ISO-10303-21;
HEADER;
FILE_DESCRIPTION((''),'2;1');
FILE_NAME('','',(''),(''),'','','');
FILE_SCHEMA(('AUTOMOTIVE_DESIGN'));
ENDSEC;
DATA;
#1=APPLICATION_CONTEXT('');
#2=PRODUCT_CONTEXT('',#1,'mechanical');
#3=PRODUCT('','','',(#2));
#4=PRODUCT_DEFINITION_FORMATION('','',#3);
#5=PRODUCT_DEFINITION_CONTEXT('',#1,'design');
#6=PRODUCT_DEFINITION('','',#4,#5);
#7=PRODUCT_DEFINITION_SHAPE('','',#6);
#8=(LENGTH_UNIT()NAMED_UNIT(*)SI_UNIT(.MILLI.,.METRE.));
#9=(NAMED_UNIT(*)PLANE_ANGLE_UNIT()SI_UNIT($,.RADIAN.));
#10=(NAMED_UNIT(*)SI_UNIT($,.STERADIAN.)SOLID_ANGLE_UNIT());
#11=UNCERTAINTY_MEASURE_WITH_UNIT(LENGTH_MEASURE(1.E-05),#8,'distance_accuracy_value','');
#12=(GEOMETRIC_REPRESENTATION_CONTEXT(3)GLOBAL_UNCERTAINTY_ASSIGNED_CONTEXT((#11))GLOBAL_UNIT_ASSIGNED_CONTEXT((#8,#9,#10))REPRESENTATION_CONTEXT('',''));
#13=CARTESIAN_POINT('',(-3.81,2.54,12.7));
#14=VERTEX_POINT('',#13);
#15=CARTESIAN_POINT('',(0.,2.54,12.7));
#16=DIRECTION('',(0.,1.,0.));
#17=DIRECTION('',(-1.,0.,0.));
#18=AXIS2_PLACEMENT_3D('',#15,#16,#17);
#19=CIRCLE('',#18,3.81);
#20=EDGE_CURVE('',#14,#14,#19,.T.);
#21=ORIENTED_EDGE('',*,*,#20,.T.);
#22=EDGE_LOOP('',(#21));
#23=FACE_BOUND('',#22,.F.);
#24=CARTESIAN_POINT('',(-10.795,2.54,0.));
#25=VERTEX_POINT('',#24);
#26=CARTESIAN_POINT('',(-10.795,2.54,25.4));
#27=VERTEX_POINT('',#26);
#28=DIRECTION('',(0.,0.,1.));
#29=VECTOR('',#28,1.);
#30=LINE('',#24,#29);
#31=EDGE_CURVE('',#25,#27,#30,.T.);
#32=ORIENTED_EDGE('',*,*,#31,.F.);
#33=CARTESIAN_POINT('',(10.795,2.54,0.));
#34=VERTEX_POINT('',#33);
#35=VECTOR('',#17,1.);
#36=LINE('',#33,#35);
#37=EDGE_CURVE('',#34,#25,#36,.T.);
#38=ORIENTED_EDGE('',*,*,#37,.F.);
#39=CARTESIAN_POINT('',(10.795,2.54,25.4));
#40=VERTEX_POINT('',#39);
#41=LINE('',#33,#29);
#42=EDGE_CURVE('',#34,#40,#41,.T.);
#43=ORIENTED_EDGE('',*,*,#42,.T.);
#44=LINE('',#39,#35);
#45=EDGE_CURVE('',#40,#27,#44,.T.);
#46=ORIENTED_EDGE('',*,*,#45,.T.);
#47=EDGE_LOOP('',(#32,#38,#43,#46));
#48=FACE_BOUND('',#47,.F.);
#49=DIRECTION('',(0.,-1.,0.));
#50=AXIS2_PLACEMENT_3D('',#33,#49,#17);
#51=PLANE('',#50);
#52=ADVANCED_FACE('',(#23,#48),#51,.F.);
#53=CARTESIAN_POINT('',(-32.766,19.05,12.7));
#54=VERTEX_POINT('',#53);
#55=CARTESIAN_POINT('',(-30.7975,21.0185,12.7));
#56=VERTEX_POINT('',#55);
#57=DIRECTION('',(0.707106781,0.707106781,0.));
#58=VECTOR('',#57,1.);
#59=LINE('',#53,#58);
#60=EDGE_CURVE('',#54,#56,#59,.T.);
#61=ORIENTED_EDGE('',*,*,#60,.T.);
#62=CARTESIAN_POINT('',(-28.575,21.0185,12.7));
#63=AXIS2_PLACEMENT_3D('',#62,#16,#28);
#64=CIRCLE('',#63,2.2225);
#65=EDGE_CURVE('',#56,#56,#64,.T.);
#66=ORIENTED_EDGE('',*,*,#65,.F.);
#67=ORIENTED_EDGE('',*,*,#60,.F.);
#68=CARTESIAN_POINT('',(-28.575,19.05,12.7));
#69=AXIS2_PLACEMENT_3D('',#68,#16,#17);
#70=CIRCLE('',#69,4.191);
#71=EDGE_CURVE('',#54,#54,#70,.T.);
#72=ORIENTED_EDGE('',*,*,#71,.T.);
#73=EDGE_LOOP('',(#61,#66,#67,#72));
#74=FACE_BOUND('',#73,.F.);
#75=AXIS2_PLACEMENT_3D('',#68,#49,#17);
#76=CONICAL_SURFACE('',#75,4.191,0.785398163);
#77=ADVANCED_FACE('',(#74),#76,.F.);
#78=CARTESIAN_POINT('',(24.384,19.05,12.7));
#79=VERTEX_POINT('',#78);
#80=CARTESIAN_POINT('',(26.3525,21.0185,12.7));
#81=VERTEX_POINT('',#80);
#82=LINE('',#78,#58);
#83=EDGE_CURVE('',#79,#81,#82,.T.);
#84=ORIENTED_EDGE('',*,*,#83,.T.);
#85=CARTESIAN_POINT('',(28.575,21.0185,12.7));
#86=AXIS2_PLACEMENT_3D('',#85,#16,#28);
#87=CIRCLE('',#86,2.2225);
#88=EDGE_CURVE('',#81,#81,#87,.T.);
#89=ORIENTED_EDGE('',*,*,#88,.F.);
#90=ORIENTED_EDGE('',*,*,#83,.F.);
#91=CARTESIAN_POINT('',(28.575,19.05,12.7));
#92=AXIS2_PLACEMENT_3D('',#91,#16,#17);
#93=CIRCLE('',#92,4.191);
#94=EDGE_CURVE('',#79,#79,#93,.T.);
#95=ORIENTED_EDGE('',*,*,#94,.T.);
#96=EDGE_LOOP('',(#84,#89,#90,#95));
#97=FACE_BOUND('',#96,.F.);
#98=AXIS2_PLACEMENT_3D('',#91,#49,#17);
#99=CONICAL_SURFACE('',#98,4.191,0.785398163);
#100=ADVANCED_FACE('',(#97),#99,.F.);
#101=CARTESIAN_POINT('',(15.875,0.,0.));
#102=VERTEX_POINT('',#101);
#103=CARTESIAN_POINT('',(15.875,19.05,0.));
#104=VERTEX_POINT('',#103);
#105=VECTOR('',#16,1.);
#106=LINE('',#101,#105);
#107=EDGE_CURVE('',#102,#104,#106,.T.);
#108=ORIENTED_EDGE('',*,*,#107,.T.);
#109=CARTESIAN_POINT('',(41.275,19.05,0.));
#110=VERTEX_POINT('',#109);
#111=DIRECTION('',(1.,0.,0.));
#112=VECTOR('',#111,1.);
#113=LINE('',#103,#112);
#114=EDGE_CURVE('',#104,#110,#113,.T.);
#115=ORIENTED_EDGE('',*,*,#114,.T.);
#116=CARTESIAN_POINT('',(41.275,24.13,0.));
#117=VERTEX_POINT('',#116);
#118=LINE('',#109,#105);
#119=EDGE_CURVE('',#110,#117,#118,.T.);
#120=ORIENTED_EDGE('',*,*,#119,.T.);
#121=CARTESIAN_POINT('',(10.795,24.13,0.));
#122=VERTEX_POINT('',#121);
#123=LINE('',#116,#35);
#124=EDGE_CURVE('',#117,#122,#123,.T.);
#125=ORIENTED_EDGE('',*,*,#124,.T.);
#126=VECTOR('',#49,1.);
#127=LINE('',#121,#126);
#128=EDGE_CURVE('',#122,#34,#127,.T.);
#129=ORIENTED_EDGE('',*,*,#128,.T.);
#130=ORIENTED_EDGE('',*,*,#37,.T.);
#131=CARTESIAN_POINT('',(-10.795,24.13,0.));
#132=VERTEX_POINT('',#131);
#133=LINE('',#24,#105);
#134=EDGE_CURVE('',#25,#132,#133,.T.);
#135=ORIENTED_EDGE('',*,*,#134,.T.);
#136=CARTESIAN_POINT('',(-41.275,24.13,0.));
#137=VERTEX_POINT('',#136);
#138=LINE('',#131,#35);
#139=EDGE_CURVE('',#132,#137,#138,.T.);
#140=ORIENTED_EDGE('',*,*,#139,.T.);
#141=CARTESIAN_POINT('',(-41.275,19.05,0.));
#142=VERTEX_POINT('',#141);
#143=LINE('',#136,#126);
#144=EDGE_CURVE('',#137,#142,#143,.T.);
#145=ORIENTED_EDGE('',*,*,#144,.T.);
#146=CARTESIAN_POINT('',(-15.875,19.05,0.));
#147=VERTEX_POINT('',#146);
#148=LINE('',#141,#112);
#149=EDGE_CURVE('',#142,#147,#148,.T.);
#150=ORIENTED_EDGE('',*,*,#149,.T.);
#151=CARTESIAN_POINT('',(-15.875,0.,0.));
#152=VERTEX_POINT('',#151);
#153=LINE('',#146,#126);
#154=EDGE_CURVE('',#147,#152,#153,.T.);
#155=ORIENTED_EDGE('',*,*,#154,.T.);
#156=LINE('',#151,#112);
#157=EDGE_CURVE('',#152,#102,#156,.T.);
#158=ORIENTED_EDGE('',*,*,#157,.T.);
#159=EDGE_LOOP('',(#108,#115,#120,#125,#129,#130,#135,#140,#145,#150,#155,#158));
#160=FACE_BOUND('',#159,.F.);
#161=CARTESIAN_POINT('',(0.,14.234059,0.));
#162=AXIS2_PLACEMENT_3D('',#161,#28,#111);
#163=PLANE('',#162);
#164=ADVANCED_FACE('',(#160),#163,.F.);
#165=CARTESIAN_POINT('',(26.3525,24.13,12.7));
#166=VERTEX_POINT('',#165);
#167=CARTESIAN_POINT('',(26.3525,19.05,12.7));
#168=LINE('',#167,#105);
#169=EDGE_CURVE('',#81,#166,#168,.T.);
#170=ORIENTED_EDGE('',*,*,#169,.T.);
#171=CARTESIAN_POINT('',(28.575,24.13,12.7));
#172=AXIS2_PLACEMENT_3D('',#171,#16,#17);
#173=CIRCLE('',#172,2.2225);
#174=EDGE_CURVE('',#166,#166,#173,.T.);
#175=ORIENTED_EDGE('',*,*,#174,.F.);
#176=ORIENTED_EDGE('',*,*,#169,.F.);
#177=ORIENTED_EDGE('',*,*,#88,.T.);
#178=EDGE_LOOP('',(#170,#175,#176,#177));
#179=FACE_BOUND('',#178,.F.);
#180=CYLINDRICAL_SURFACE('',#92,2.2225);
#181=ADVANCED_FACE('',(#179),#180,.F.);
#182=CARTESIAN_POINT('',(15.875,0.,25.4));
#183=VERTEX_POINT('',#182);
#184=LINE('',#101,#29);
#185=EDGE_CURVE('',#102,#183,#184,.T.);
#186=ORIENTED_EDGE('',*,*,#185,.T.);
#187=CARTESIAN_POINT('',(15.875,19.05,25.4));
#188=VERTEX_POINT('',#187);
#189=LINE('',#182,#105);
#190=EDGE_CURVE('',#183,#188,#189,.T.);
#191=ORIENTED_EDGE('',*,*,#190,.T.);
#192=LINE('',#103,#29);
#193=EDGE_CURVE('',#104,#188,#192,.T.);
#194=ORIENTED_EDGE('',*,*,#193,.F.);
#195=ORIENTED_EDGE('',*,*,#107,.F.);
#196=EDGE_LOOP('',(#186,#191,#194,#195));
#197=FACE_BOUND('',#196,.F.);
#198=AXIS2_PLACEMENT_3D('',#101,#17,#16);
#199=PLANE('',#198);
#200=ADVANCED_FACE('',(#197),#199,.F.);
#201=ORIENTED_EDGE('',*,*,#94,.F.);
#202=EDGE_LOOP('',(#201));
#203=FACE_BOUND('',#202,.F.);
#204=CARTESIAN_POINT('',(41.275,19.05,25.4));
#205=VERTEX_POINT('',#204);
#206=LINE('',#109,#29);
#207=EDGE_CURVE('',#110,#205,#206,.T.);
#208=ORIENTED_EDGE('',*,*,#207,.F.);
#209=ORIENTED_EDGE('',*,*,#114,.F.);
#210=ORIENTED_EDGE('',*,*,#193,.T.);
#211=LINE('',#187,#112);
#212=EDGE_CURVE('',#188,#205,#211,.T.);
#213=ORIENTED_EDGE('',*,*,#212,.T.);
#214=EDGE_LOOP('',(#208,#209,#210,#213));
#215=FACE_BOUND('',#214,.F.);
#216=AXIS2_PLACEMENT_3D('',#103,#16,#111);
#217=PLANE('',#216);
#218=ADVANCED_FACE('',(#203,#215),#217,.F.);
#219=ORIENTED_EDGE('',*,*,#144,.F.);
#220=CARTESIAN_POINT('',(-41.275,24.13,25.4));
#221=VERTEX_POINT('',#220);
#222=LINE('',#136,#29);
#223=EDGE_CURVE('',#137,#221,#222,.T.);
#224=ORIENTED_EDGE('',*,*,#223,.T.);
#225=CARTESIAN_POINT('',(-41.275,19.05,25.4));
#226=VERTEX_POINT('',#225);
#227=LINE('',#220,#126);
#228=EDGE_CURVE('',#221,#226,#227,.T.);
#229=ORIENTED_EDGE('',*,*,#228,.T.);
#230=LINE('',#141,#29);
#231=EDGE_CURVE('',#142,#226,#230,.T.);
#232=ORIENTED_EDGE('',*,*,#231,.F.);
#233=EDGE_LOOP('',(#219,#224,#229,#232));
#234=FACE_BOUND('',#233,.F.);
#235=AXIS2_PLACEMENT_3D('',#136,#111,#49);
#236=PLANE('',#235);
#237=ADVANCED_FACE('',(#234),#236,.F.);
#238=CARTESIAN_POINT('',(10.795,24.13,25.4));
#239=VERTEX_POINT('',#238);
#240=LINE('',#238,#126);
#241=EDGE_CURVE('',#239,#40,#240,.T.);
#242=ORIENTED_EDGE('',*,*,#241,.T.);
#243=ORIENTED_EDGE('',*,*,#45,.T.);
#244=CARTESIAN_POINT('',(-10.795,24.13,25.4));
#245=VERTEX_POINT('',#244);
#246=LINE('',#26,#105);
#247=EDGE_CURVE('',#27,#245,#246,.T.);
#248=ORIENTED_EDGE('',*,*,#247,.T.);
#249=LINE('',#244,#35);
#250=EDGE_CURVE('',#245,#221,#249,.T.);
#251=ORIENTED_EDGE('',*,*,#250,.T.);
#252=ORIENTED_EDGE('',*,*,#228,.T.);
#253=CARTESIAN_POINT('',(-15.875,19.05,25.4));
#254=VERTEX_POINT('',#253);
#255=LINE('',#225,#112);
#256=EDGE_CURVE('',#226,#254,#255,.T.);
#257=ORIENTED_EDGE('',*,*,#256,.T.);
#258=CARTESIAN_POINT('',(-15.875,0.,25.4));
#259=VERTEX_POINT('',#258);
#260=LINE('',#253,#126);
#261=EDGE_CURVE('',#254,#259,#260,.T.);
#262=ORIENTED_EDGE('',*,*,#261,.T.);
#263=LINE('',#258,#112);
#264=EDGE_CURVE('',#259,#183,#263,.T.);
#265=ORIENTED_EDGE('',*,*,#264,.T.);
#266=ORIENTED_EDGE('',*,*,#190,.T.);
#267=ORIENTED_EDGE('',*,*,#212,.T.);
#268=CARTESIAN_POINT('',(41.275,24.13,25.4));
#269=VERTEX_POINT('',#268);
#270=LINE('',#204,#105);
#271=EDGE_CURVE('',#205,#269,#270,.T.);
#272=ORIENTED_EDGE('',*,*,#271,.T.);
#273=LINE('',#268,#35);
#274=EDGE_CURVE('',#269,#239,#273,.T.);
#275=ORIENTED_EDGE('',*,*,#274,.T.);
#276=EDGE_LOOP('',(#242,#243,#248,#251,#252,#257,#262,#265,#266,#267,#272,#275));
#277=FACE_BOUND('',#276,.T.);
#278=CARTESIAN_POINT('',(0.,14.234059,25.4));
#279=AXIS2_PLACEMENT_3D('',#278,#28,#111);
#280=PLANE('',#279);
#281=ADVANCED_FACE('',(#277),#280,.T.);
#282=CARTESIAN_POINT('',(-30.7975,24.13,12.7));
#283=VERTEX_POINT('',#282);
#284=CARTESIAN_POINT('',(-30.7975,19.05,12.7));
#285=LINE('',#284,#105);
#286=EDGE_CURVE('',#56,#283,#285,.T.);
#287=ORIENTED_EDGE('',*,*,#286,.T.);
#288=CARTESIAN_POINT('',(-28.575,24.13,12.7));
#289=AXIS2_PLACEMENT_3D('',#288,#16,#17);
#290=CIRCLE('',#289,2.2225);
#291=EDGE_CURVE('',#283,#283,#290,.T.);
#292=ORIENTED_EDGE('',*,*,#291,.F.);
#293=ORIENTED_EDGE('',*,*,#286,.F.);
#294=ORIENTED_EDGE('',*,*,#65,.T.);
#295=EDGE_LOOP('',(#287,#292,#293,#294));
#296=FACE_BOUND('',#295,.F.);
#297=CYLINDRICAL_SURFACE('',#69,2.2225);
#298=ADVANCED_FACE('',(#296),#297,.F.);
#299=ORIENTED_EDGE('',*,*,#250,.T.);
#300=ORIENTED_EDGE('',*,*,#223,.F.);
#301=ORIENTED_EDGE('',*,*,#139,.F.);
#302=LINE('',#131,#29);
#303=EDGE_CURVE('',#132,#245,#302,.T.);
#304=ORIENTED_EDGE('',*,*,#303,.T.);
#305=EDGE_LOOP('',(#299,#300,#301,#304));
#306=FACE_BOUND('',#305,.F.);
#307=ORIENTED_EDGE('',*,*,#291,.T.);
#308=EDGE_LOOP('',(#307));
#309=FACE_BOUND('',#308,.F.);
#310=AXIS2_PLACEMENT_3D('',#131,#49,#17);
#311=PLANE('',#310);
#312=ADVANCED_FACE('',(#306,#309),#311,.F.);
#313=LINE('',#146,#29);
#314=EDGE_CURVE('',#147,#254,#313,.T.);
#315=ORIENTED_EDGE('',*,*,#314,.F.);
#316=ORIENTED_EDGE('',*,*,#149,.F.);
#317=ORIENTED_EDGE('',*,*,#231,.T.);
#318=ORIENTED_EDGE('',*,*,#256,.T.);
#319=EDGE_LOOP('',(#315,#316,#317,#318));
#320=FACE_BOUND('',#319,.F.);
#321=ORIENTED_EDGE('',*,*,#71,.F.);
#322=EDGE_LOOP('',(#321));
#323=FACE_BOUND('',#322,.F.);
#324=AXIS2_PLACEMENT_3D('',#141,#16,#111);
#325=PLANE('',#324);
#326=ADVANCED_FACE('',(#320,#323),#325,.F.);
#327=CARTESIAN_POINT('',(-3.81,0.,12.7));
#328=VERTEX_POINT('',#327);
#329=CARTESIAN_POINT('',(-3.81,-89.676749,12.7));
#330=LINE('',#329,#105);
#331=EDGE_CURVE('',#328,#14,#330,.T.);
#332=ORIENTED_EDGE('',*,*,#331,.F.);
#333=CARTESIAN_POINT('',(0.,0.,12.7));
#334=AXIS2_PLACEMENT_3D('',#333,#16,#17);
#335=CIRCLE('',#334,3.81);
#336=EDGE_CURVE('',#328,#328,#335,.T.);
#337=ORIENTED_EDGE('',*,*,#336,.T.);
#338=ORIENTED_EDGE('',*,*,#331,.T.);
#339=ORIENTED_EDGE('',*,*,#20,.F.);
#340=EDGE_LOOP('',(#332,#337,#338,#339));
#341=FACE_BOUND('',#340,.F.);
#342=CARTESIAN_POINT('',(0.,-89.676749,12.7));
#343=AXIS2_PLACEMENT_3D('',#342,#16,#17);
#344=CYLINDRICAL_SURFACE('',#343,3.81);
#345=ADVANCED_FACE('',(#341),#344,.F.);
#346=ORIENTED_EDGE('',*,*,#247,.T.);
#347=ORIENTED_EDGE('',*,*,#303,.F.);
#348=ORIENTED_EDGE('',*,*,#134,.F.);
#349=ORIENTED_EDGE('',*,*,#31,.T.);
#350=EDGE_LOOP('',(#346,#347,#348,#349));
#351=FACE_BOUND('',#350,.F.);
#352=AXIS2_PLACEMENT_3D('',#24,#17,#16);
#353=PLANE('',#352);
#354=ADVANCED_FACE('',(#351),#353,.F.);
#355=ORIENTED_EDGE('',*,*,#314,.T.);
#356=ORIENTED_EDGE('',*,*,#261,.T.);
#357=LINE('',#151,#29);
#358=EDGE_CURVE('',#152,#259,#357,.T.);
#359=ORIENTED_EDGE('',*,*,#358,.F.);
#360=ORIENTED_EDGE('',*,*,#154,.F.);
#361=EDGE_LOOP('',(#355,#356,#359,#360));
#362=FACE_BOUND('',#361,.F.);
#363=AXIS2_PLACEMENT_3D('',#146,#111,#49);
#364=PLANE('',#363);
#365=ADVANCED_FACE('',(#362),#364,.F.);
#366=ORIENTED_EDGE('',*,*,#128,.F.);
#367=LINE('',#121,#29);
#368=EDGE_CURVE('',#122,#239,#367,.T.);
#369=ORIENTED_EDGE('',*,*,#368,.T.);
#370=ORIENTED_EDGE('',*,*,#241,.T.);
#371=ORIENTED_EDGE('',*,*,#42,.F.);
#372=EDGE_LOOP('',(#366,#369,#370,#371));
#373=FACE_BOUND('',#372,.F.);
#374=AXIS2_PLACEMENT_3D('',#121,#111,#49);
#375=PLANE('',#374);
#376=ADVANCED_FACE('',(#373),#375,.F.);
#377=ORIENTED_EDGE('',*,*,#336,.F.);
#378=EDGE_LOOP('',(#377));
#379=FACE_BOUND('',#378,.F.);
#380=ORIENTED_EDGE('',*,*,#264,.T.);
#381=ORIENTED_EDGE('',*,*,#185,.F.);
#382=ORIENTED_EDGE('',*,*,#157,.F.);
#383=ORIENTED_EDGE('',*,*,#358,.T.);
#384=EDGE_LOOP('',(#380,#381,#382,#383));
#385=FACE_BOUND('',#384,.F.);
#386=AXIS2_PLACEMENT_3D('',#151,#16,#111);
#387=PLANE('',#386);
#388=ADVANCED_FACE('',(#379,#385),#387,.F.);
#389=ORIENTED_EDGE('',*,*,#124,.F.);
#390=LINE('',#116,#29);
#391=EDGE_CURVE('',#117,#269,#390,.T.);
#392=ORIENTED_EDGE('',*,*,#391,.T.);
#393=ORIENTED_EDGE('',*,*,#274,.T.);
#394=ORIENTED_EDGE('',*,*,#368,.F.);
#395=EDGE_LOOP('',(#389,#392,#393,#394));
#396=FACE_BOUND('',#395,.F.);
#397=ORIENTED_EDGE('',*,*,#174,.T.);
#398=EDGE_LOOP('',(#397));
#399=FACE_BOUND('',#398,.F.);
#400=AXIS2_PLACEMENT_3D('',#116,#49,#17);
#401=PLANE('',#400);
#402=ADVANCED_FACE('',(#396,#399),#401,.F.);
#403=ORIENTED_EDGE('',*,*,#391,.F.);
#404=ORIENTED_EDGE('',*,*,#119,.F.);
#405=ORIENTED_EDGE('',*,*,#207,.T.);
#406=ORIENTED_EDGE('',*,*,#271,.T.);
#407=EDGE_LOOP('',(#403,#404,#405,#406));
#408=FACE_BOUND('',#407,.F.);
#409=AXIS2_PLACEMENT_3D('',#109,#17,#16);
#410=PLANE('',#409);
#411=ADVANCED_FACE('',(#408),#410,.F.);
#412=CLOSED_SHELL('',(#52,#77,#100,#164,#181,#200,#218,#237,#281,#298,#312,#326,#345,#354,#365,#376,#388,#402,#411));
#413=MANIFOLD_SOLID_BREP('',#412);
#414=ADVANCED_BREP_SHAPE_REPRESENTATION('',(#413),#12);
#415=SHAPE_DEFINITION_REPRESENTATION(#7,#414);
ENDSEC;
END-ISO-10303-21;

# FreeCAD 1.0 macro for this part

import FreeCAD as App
import Part
import Sketcher
from FreeCAD import Vector
Q = App.Units.Quantity


def add_polygon(sketch, points):
    """Adds a closed chain of lines whose ends are joined by coincident constraints."""
    first, n = sketch.GeometryCount, len(points)
    for a, b in zip(points, points[1:] + points[:1]):
        sketch.addGeometry(Part.LineSegment(App.Vector(*a, 0), App.Vector(*b, 0)), False)
    for i in range(n):
        sketch.addConstraint(Sketcher.Constraint("Coincident", first + i, 2, first + (i + 1) % n, 1))

doc = App.newDocument("Part")
body = doc.addObject("PartDesign::Body", "Body")

sketch1 = body.newObject("Sketcher::SketchObject", "Sketch")
sketch1.AttachmentSupport = (doc.getObject("XY_Plane"), [""])
sketch1.MapMode = "FlatFace"
add_polygon(sketch1, [(-10.795, 24.13), (-41.275, 24.13), (-41.275, 19.05), (-15.875, 19.05), (-15.875, 0), (15.875, 0), (15.875, 19.05), (41.275, 19.05), (41.275, 24.13), (10.795, 24.13), (10.795, 2.54), (-10.795, 2.54)])
sketch1.addConstraint([
    Sketcher.Constraint("Horizontal", 0),
    Sketcher.Constraint("Vertical", 1),
    Sketcher.Constraint("Horizontal", 2),
    Sketcher.Constraint("Vertical", 3),
    Sketcher.Constraint("Horizontal", 4),
    Sketcher.Constraint("Vertical", 5),
    Sketcher.Constraint("Horizontal", 6),
    Sketcher.Constraint("Vertical", 7),
    Sketcher.Constraint("Horizontal", 8),
    Sketcher.Constraint("Vertical", 9),
    Sketcher.Constraint("Horizontal", 10),
    Sketcher.Constraint("Vertical", 11),
    Sketcher.Constraint("Symmetric", 3, 2, 4, 2, -1, 1),
    Sketcher.Constraint("Symmetric", 1, 2, 6, 2, -2),
    Sketcher.Constraint("Symmetric", 8, 2, 11, 2, -2),
    Sketcher.Constraint("Equal", 10, 9),
    Sketcher.Constraint("DistanceX", 2, 1, 2, 2, Q("1 in")),
    Sketcher.Constraint("DistanceX", 0, 2, 0, 1, Q("1.2 in")),
    Sketcher.Constraint("DistanceY", 1, 2, 1, 1, Q("0.2 in")),
    Sketcher.Constraint("DistanceX", 4, 1, 4, 2, Q("1.25 in")),
    Sketcher.Constraint("DistanceY", 3, 2, 3, 1, Q("0.75 in")),
])
pad1 = body.newObject("PartDesign::Pad", "Pad")
pad1.Profile = sketch1
pad1.Length = Q("1 in")

sketch2 = body.newObject("Sketcher::SketchObject", "Sketch001")
sketch2.AttachmentSupport = (doc.getObject("XZ_Plane"), [""])
sketch2.MapMode = "FlatFace"
sketch2.addGeometry(Part.Circle(Vector(0, 12.7, 0), Vector(0, 0, 1), 3.81), False)
sketch2.addConstraint([
    Sketcher.Constraint("PointOnObject", 0, 3, -2),
    Sketcher.Constraint("Diameter", 0, Q("0.3 in")),
    Sketcher.Constraint("DistanceY", -1, 1, 0, 3, Q("0.5 in")),
])
doc.recompute()
hole = body.newObject("PartDesign::Hole", "Hole")
hole.Profile = sketch2
hole.ThreadType = "None"
hole.Diameter = Q("0.3 in")
hole.DepthType = "ThroughAll"

sketch3 = body.newObject("Sketcher::SketchObject", "Sketch002")
sketch3.AttachmentSupport = (doc.getObject("XZ_Plane"), [""])
sketch3.MapMode = "FlatFace"
sketch3.AttachmentOffset = App.Placement(Vector(0, 0, -0.75 * 25.4), App.Rotation())
sketch3.addGeometry(Part.Circle(Vector(-28.575, 12.7, 0), Vector(0, 0, 1), 2.2225), False)
sketch3.addConstraint([
    Sketcher.Constraint("Diameter", 0, Q("0.175 in")),
    Sketcher.Constraint("DistanceY", -1, 1, 0, 3, Q("0.5 in")),
    Sketcher.Constraint("DistanceX", 0, 3, -1, 1, Q("1.125 in")),
])
doc.recompute()
hole2 = body.newObject("PartDesign::Hole", "Hole001")
hole2.Profile = sketch3
hole2.ThreadType = "None"
hole2.Diameter = Q("0.175 in")
hole2.DepthType = "ThroughAll"
hole2.HoleCutType = "Countersink"
hole2.HoleCutDiameter = Q("0.33 in")
hole2.HoleCutCountersinkAngle = 90

sketch4 = body.newObject("Sketcher::SketchObject", "Sketch003")
sketch4.AttachmentSupport = (doc.getObject("XZ_Plane"), [""])
sketch4.MapMode = "FlatFace"
sketch4.AttachmentOffset = App.Placement(Vector(0, 0, -0.75 * 25.4), App.Rotation())
sketch4.addGeometry(Part.Circle(Vector(28.575, 12.7, 0), Vector(0, 0, 1), 2.2225), False)
sketch4.addConstraint([
    Sketcher.Constraint("Diameter", 0, Q("0.175 in")),
    Sketcher.Constraint("DistanceY", -1, 1, 0, 3, Q("0.5 in")),
    Sketcher.Constraint("DistanceX", -1, 1, 0, 3, Q("1.125 in")),
])
doc.recompute()
hole3 = body.newObject("PartDesign::Hole", "Hole002")
hole3.Profile = sketch4
hole3.ThreadType = "None"
hole3.Diameter = Q("0.175 in")
hole3.DepthType = "ThroughAll"
hole3.HoleCutType = "Countersink"
hole3.HoleCutDiameter = Q("0.33 in")
hole3.HoleCutCountersinkAngle = 90

doc.recompute()
